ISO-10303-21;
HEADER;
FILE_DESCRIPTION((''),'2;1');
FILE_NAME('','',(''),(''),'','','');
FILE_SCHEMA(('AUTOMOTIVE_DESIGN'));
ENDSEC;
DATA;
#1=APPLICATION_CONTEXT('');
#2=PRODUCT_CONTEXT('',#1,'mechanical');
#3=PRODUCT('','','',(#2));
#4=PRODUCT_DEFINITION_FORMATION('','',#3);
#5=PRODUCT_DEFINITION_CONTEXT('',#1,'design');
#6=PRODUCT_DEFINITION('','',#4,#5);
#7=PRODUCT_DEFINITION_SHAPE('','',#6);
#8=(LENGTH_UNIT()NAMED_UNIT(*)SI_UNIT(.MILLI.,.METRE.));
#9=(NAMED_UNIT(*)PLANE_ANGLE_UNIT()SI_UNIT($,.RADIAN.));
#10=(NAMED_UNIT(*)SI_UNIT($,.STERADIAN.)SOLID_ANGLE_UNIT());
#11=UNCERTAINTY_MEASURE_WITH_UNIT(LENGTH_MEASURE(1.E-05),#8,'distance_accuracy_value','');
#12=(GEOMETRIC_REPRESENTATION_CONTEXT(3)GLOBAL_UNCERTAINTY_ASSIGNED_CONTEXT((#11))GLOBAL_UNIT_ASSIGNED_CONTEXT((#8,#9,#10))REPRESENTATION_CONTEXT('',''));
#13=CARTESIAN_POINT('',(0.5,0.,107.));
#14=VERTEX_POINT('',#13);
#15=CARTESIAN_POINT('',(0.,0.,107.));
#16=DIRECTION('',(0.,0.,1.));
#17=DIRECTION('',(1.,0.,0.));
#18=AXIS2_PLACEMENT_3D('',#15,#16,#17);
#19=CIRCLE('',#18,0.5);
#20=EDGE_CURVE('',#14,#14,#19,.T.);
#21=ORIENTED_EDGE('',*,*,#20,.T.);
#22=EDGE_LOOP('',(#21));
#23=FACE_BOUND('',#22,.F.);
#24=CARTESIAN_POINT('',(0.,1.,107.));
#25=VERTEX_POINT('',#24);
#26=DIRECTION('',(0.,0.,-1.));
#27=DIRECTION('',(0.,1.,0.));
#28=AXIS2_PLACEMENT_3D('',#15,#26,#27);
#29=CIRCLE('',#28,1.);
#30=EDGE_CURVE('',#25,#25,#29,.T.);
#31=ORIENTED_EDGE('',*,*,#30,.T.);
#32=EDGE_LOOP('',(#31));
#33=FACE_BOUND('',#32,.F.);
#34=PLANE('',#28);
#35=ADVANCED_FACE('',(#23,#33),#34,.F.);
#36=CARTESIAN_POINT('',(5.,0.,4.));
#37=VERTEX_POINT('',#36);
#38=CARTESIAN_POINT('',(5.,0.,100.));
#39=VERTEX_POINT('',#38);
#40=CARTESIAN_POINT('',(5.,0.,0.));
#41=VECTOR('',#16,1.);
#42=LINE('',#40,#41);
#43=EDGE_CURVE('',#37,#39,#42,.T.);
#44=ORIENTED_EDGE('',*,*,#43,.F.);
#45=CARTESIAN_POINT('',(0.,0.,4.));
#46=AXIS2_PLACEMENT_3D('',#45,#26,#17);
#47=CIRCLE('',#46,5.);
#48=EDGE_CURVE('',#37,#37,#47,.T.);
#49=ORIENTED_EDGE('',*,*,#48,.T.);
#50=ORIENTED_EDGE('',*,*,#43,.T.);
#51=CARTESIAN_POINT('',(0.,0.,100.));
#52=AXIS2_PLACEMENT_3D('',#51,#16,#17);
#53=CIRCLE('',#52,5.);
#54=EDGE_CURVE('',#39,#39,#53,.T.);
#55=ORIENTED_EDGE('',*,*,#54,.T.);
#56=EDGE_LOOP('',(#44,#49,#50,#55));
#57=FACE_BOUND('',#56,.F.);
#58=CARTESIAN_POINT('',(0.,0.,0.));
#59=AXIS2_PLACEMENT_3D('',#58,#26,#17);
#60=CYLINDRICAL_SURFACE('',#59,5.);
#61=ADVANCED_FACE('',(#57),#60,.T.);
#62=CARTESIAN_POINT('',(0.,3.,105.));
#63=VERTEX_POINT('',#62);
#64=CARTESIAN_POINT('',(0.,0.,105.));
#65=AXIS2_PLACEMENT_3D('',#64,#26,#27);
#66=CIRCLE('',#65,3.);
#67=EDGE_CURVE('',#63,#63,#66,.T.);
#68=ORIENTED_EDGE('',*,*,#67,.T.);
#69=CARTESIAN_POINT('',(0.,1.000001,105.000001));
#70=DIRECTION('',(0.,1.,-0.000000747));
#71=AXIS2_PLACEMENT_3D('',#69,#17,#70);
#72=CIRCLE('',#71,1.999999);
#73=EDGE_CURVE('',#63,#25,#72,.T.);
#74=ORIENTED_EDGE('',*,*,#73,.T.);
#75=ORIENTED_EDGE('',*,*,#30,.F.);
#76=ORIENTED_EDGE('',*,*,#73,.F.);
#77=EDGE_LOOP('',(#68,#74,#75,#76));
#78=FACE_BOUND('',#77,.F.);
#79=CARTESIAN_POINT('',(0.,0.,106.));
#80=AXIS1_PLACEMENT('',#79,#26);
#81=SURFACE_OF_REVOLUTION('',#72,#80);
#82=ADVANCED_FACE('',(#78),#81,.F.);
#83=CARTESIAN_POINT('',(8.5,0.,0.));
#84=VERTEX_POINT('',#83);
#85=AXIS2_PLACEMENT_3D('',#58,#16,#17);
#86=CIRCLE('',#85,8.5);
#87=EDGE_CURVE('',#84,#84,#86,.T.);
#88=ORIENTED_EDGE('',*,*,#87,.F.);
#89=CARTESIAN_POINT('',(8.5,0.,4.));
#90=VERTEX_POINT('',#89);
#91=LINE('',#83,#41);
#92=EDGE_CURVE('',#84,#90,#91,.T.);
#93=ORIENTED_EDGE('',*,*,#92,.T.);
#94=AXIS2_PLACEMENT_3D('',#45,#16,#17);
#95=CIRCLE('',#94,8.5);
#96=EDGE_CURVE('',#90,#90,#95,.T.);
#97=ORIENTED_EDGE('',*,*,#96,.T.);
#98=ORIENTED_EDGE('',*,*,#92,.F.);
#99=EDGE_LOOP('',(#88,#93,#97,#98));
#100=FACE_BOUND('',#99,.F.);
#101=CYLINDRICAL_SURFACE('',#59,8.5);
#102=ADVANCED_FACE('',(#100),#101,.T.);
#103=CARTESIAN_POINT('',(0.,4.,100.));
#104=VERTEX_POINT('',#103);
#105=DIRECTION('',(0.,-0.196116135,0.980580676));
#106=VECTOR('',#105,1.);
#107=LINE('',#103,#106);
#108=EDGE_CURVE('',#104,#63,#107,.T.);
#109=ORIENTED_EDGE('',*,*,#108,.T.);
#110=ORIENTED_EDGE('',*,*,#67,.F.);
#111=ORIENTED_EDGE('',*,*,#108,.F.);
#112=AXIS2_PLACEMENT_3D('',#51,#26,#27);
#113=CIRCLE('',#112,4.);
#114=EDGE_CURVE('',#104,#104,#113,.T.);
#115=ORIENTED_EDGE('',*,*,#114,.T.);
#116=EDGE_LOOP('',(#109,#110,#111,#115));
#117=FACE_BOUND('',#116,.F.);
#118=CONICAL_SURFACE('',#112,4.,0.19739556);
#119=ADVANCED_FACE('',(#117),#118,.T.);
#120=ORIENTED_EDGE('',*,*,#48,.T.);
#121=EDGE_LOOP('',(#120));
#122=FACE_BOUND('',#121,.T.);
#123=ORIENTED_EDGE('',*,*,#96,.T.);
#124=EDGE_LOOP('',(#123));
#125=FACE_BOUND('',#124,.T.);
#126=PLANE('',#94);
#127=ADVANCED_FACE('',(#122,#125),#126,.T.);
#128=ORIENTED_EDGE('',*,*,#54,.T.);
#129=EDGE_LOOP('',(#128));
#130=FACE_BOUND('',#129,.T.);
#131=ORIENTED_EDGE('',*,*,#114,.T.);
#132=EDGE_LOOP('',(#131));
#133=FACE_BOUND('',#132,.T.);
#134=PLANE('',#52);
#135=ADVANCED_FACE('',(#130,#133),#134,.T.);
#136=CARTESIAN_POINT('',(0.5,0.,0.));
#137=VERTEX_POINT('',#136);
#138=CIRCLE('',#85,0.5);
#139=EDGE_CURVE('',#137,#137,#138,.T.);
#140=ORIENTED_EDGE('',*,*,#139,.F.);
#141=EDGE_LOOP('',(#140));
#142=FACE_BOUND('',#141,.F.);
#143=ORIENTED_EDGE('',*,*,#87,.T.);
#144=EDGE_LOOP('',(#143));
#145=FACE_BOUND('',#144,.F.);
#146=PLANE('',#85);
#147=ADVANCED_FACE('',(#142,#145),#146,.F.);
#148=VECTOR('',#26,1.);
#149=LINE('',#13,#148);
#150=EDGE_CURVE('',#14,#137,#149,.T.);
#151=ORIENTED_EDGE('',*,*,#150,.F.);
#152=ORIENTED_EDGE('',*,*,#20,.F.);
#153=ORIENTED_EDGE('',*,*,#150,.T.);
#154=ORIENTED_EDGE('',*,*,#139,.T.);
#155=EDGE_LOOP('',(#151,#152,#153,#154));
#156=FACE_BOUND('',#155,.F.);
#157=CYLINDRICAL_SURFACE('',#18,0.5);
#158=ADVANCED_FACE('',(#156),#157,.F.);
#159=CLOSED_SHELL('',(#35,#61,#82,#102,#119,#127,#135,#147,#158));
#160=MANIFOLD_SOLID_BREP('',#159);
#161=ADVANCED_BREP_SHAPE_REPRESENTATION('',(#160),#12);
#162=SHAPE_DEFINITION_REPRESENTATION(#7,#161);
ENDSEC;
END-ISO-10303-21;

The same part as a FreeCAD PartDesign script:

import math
import FreeCAD as App
import Part
import Sketcher
from FreeCAD import Vector
Q = App.Units.Quantity

doc = App.newDocument("Part")
body = doc.addObject("PartDesign::Body", "Body")

# Sketch on XY plane
sketch1 = body.newObject("Sketcher::SketchObject", "Sketch")
sketch1.AttachmentSupport = (doc.getObject("XY_Plane"), [""])
sketch1.MapMode = "FlatFace"
sketch1.addGeometry(Part.Circle(Vector(0, 0, 0), Vector(0, 0, 1), 8.5), False)
sketch1.addConstraint([
    Sketcher.Constraint("Coincident", 0, 3, -1, 1),
    Sketcher.Constraint("Diameter", 0, Q("17 mm")),
])
pad1 = body.newObject("PartDesign::Pad", "Pad")
pad1.Profile = sketch1
pad1.Length = 4

# Sketch on XY plane
sketch2 = body.newObject("Sketcher::SketchObject", "Sketch001")
sketch2.AttachmentSupport = (doc.getObject("XY_Plane"), [""])
sketch2.MapMode = "FlatFace"
sketch2.addGeometry(Part.Circle(Vector(0, 0, 0), Vector(0, 0, 1), 5), False)
sketch2.addConstraint([
    Sketcher.Constraint("Coincident", 0, 3, -1, 1),
    Sketcher.Constraint("Diameter", 0, Q("10 mm")),
])
pad2 = body.newObject("PartDesign::Pad", "Pad001")
pad2.Profile = sketch2
pad2.Length = 100

# Sketch on YZ plane
sketch3 = body.newObject("Sketcher::SketchObject", "Sketch002")
sketch3.AttachmentSupport = (doc.getObject("YZ_Plane"), [""])
sketch3.MapMode = "FlatFace"
sketch3.addGeometry([
    Part.LineSegment(Vector(3, 105, 0), Vector(0, 105, 0)),
    Part.LineSegment(Vector(0, 105, 0), Vector(0, 100, 0)),
    Part.LineSegment(Vector(0, 100, 0), Vector(4, 100, 0)),
    Part.LineSegment(Vector(4, 100, 0), Vector(3, 105, 0)),
], False)
sketch3.addConstraint([
    Sketcher.Constraint("Coincident", 0, 2, 1, 1),
    Sketcher.Constraint("Coincident", 1, 2, 2, 1),
    Sketcher.Constraint("Coincident", 2, 2, 3, 1),
    Sketcher.Constraint("Coincident", 3, 2, 0, 1),
    Sketcher.Constraint("Horizontal", 0),
    Sketcher.Constraint("Vertical", 1),
    Sketcher.Constraint("Horizontal", 2),
    Sketcher.Constraint("PointOnObject", 0, 2, -2),
    Sketcher.Constraint("DistanceX", 0, 2, 0, 1, Q("3 mm")),
    Sketcher.Constraint("DistanceX", 2, 1, 2, 2, Q("4 mm")),
    Sketcher.Constraint("DistanceY", 1, 2, 1, 1, Q("5 mm")),
    Sketcher.Constraint("DistanceY", -1, 1, 0, 2, Q("105 mm")),
])
revolution = body.newObject("PartDesign::Revolution", "Revolution")
revolution.Profile = sketch3
revolution.ReferenceAxis = (sketch3, ["V_Axis"])
revolution.Angle = 360

# Sketch on YZ plane
sketch4 = body.newObject("Sketcher::SketchObject", "Sketch003")
sketch4.AttachmentSupport = (doc.getObject("YZ_Plane"), [""])
sketch4.MapMode = "FlatFace"
sketch4.addGeometry([
    Part.LineSegment(Vector(1, 107, 0), Vector(0, 107, 0)),
    Part.LineSegment(Vector(0, 107, 0), Vector(0, 105, 0)),
    Part.LineSegment(Vector(0, 105, 0), Vector(3, 105, 0)),
    Part.ArcOfCircle(Part.Circle(Vector(1.000001, 105.000001, 0), Vector(0, 0, 1), 1.999999), math.radians(-0.000043), math.radians(90.000043)),
], False)
sketch4.addConstraint([
    Sketcher.Constraint("Coincident", 0, 2, 1, 1),
    Sketcher.Constraint("Coincident", 1, 2, 2, 1),
    Sketcher.Constraint("Coincident", 2, 2, 3, 1),
    Sketcher.Constraint("Tangent", 3, 2, 0, 1),
    Sketcher.Constraint("Horizontal", 0),
    Sketcher.Constraint("Vertical", 1),
    Sketcher.Constraint("Horizontal", 2),
    Sketcher.Constraint("PointOnObject", 0, 2, -2),
    Sketcher.Constraint("Horizontal", 3, 3, 1, 2),
    Sketcher.Constraint("Radius", 3, Q("1.999999 mm")),
    Sketcher.Constraint("DistanceX", 0, 2, 0, 1, Q("1 mm")),
    Sketcher.Constraint("DistanceY", -1, 1, 3, 3, Q("105.000001 mm")),
])
revolution2 = body.newObject("PartDesign::Revolution", "Revolution001")
revolution2.Profile = sketch4
revolution2.ReferenceAxis = (sketch4, ["V_Axis"])
revolution2.Angle = 360

# Sketch on XY plane
sketch5 = body.newObject("Sketcher::SketchObject", "Sketch004")
sketch5.AttachmentSupport = (doc.getObject("XY_Plane"), [""])
sketch5.MapMode = "FlatFace"
sketch5.AttachmentOffset = App.Placement(Vector(0, 0, 107), App.Rotation())
sketch5.addGeometry(Part.Circle(Vector(0, 0, 0), Vector(0, 0, 1), 0.5), False)
sketch5.addConstraint([
    Sketcher.Constraint("Coincident", 0, 3, -1, 1),
    Sketcher.Constraint("Diameter", 0, Q("1 mm")),
])
pocket1 = body.newObject("PartDesign::Pocket", "Pocket")
pocket1.Profile = sketch5
pocket1.Length = 112.7

doc.recompute()
